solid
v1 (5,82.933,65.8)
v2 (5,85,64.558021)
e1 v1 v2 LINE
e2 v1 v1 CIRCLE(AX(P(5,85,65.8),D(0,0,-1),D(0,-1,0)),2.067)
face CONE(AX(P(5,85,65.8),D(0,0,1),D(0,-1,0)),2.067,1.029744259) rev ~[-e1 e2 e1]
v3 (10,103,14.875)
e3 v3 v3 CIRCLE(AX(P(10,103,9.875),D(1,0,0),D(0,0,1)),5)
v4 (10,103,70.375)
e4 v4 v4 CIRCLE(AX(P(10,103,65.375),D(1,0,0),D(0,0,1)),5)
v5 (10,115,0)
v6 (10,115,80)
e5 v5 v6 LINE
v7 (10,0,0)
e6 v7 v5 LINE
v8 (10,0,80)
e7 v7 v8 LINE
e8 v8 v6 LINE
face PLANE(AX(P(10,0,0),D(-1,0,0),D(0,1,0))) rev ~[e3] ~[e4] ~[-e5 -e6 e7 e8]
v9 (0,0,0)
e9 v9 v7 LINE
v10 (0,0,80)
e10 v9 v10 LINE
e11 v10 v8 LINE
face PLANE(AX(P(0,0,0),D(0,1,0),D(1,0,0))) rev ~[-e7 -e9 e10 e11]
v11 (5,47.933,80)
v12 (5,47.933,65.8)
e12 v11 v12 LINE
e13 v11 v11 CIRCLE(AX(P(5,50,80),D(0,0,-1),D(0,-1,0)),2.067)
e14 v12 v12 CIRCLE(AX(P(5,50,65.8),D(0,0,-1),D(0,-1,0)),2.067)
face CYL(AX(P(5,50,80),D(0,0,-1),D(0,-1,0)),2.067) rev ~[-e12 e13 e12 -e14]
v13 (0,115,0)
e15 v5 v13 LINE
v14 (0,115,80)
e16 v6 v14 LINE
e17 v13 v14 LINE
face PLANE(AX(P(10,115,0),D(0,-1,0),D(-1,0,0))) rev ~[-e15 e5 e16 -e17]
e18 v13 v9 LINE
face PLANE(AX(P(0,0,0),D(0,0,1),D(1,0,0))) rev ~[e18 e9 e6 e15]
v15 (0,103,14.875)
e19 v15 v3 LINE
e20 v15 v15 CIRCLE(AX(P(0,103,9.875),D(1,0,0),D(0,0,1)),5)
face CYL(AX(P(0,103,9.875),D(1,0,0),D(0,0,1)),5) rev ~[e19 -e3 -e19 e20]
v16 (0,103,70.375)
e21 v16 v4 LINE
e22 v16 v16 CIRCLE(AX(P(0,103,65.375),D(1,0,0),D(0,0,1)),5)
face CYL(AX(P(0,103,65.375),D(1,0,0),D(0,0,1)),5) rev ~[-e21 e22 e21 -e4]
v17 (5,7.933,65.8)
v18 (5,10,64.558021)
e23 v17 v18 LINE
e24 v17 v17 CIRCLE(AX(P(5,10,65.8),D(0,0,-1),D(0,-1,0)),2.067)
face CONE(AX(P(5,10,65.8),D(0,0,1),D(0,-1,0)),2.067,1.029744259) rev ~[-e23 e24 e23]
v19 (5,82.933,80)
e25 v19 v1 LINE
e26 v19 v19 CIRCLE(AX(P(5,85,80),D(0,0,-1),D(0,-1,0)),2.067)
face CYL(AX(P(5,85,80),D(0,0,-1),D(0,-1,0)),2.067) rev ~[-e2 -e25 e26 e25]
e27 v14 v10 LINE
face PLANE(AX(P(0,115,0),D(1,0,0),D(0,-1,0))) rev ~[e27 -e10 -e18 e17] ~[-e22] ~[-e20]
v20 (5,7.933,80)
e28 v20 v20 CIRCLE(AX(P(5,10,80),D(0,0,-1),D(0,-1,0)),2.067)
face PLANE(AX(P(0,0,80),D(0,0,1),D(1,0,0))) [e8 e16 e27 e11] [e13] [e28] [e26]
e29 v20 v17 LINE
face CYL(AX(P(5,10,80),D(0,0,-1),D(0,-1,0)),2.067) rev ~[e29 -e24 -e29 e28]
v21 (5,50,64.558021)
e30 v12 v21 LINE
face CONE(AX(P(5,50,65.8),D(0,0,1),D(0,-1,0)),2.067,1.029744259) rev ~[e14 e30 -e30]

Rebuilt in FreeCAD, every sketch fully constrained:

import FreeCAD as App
import Part
import Sketcher

V = App.Vector
Q = App.Units.Quantity


def add_polygon(sketch, points):
    """Adds a closed chain of lines whose ends are joined by coincident constraints."""
    first, n = sketch.GeometryCount, len(points)
    for a, b in zip(points, points[1:] + points[:1]):
        sketch.addGeometry(Part.LineSegment(App.Vector(*a, 0), App.Vector(*b, 0)), False)
    for i in range(n):
        sketch.addConstraint(Sketcher.Constraint("Coincident", first + i, 2, first + (i + 1) % n, 1))

doc = App.newDocument("Part")
body = doc.addObject("PartDesign::Body", "Body")

sketch1 = body.newObject("Sketcher::SketchObject", "Sketch")
sketch1.AttachmentSupport = (doc.getObject("XY_Plane"), [""])
sketch1.MapMode = "FlatFace"
add_polygon(sketch1, [(0, 115), (0, 0), (10, 0), (10, 115)])
sketch1.addConstraint([
    Sketcher.Constraint("Vertical", 0),
    Sketcher.Constraint("Horizontal", 1),
    Sketcher.Constraint("Vertical", 2),
    Sketcher.Constraint("Horizontal", 3),
    Sketcher.Constraint("Coincident", 0, 2, -1, 1),
    Sketcher.Constraint("DistanceX", 1, 1, 1, 2, Q("10 mm")),
    Sketcher.Constraint("DistanceY", 0, 2, 0, 1, Q("115 mm")),
])
pad1 = body.newObject("PartDesign::Pad", "Pad")
pad1.Profile = sketch1
pad1.Length = 80

sketch2 = body.newObject("Sketcher::SketchObject", "Sketch001")
sketch2.AttachmentSupport = (doc.getObject("YZ_Plane"), [""])
sketch2.MapMode = "FlatFace"
sketch2.addGeometry([
    Part.Circle(V(103, 10, 0), V(0, 0, 1), 5),
    Part.Circle(V(103, 65, 0), V(0, 0, 1), 5),
], False)
sketch2.addConstraint([
    Sketcher.Constraint("Equal", 0, 1),
    Sketcher.Constraint("Vertical", 0, 3, 1, 3),
    Sketcher.Constraint("Diameter", 0, Q("10 mm")),
    Sketcher.Constraint("DistanceX", -1, 1, 0, 3, Q("103 mm")),
    Sketcher.Constraint("DistanceY", 0, 3, 1, 3, Q("55.5 mm")),
    Sketcher.Constraint("DistanceY", -1, 1, 0, 3, Q("9.875 mm")),
])
doc.recompute()
hole = body.newObject("PartDesign::Hole", "Hole")
hole.Profile = sketch2
hole.ThreadType = "None"
hole.Diameter = 10
hole.DepthType = "ThroughAll"
hole.Reversed = True

sketch3 = body.newObject("Sketcher::SketchObject", "Sketch002")
sketch3.AttachmentSupport = (doc.getObject("XY_Plane"), [""])
sketch3.MapMode = "FlatFace"
sketch3.AttachmentOffset = App.Placement(V(0, 0, 80), App.Rotation())
sketch3.addGeometry([
    Part.Circle(V(5, 85, 0), V(0, 0, 1), 2.1),
    Part.Circle(V(5, 10, 0), V(0, 0, 1), 2.1),
    Part.Circle(V(5, 50, 0), V(0, 0, 1), 2.1),
], False)
sketch3.addConstraint([
    Sketcher.Constraint("Equal", 0, 1),
    Sketcher.Constraint("Equal", 1, 2),
    Sketcher.Constraint("Vertical", 0, 3, 1, 3),
    Sketcher.Constraint("Vertical", 1, 3, 2, 3),
    Sketcher.Constraint("Diameter", 0, Q("4.134 mm")),
    Sketcher.Constraint("DistanceX", -1, 1, 0, 3, Q("5 mm")),
    Sketcher.Constraint("DistanceY", -1, 1, 0, 3, Q("85 mm")),
    Sketcher.Constraint("DistanceY", -1, 1, 1, 3, Q("10 mm")),
    Sketcher.Constraint("DistanceY", -1, 1, 2, 3, Q("50 mm")),
])
doc.recompute()
hole2 = body.newObject("PartDesign::Hole", "Hole001")
hole2.Profile = sketch3
hole2.ThreadType = "None"
hole2.Diameter = 4.134
hole2.DepthType = "Dimension"
hole2.Depth = 14.2
hole2.DrillPoint = "Angled"
hole2.DrillPointAngle = 118

doc.recompute()
